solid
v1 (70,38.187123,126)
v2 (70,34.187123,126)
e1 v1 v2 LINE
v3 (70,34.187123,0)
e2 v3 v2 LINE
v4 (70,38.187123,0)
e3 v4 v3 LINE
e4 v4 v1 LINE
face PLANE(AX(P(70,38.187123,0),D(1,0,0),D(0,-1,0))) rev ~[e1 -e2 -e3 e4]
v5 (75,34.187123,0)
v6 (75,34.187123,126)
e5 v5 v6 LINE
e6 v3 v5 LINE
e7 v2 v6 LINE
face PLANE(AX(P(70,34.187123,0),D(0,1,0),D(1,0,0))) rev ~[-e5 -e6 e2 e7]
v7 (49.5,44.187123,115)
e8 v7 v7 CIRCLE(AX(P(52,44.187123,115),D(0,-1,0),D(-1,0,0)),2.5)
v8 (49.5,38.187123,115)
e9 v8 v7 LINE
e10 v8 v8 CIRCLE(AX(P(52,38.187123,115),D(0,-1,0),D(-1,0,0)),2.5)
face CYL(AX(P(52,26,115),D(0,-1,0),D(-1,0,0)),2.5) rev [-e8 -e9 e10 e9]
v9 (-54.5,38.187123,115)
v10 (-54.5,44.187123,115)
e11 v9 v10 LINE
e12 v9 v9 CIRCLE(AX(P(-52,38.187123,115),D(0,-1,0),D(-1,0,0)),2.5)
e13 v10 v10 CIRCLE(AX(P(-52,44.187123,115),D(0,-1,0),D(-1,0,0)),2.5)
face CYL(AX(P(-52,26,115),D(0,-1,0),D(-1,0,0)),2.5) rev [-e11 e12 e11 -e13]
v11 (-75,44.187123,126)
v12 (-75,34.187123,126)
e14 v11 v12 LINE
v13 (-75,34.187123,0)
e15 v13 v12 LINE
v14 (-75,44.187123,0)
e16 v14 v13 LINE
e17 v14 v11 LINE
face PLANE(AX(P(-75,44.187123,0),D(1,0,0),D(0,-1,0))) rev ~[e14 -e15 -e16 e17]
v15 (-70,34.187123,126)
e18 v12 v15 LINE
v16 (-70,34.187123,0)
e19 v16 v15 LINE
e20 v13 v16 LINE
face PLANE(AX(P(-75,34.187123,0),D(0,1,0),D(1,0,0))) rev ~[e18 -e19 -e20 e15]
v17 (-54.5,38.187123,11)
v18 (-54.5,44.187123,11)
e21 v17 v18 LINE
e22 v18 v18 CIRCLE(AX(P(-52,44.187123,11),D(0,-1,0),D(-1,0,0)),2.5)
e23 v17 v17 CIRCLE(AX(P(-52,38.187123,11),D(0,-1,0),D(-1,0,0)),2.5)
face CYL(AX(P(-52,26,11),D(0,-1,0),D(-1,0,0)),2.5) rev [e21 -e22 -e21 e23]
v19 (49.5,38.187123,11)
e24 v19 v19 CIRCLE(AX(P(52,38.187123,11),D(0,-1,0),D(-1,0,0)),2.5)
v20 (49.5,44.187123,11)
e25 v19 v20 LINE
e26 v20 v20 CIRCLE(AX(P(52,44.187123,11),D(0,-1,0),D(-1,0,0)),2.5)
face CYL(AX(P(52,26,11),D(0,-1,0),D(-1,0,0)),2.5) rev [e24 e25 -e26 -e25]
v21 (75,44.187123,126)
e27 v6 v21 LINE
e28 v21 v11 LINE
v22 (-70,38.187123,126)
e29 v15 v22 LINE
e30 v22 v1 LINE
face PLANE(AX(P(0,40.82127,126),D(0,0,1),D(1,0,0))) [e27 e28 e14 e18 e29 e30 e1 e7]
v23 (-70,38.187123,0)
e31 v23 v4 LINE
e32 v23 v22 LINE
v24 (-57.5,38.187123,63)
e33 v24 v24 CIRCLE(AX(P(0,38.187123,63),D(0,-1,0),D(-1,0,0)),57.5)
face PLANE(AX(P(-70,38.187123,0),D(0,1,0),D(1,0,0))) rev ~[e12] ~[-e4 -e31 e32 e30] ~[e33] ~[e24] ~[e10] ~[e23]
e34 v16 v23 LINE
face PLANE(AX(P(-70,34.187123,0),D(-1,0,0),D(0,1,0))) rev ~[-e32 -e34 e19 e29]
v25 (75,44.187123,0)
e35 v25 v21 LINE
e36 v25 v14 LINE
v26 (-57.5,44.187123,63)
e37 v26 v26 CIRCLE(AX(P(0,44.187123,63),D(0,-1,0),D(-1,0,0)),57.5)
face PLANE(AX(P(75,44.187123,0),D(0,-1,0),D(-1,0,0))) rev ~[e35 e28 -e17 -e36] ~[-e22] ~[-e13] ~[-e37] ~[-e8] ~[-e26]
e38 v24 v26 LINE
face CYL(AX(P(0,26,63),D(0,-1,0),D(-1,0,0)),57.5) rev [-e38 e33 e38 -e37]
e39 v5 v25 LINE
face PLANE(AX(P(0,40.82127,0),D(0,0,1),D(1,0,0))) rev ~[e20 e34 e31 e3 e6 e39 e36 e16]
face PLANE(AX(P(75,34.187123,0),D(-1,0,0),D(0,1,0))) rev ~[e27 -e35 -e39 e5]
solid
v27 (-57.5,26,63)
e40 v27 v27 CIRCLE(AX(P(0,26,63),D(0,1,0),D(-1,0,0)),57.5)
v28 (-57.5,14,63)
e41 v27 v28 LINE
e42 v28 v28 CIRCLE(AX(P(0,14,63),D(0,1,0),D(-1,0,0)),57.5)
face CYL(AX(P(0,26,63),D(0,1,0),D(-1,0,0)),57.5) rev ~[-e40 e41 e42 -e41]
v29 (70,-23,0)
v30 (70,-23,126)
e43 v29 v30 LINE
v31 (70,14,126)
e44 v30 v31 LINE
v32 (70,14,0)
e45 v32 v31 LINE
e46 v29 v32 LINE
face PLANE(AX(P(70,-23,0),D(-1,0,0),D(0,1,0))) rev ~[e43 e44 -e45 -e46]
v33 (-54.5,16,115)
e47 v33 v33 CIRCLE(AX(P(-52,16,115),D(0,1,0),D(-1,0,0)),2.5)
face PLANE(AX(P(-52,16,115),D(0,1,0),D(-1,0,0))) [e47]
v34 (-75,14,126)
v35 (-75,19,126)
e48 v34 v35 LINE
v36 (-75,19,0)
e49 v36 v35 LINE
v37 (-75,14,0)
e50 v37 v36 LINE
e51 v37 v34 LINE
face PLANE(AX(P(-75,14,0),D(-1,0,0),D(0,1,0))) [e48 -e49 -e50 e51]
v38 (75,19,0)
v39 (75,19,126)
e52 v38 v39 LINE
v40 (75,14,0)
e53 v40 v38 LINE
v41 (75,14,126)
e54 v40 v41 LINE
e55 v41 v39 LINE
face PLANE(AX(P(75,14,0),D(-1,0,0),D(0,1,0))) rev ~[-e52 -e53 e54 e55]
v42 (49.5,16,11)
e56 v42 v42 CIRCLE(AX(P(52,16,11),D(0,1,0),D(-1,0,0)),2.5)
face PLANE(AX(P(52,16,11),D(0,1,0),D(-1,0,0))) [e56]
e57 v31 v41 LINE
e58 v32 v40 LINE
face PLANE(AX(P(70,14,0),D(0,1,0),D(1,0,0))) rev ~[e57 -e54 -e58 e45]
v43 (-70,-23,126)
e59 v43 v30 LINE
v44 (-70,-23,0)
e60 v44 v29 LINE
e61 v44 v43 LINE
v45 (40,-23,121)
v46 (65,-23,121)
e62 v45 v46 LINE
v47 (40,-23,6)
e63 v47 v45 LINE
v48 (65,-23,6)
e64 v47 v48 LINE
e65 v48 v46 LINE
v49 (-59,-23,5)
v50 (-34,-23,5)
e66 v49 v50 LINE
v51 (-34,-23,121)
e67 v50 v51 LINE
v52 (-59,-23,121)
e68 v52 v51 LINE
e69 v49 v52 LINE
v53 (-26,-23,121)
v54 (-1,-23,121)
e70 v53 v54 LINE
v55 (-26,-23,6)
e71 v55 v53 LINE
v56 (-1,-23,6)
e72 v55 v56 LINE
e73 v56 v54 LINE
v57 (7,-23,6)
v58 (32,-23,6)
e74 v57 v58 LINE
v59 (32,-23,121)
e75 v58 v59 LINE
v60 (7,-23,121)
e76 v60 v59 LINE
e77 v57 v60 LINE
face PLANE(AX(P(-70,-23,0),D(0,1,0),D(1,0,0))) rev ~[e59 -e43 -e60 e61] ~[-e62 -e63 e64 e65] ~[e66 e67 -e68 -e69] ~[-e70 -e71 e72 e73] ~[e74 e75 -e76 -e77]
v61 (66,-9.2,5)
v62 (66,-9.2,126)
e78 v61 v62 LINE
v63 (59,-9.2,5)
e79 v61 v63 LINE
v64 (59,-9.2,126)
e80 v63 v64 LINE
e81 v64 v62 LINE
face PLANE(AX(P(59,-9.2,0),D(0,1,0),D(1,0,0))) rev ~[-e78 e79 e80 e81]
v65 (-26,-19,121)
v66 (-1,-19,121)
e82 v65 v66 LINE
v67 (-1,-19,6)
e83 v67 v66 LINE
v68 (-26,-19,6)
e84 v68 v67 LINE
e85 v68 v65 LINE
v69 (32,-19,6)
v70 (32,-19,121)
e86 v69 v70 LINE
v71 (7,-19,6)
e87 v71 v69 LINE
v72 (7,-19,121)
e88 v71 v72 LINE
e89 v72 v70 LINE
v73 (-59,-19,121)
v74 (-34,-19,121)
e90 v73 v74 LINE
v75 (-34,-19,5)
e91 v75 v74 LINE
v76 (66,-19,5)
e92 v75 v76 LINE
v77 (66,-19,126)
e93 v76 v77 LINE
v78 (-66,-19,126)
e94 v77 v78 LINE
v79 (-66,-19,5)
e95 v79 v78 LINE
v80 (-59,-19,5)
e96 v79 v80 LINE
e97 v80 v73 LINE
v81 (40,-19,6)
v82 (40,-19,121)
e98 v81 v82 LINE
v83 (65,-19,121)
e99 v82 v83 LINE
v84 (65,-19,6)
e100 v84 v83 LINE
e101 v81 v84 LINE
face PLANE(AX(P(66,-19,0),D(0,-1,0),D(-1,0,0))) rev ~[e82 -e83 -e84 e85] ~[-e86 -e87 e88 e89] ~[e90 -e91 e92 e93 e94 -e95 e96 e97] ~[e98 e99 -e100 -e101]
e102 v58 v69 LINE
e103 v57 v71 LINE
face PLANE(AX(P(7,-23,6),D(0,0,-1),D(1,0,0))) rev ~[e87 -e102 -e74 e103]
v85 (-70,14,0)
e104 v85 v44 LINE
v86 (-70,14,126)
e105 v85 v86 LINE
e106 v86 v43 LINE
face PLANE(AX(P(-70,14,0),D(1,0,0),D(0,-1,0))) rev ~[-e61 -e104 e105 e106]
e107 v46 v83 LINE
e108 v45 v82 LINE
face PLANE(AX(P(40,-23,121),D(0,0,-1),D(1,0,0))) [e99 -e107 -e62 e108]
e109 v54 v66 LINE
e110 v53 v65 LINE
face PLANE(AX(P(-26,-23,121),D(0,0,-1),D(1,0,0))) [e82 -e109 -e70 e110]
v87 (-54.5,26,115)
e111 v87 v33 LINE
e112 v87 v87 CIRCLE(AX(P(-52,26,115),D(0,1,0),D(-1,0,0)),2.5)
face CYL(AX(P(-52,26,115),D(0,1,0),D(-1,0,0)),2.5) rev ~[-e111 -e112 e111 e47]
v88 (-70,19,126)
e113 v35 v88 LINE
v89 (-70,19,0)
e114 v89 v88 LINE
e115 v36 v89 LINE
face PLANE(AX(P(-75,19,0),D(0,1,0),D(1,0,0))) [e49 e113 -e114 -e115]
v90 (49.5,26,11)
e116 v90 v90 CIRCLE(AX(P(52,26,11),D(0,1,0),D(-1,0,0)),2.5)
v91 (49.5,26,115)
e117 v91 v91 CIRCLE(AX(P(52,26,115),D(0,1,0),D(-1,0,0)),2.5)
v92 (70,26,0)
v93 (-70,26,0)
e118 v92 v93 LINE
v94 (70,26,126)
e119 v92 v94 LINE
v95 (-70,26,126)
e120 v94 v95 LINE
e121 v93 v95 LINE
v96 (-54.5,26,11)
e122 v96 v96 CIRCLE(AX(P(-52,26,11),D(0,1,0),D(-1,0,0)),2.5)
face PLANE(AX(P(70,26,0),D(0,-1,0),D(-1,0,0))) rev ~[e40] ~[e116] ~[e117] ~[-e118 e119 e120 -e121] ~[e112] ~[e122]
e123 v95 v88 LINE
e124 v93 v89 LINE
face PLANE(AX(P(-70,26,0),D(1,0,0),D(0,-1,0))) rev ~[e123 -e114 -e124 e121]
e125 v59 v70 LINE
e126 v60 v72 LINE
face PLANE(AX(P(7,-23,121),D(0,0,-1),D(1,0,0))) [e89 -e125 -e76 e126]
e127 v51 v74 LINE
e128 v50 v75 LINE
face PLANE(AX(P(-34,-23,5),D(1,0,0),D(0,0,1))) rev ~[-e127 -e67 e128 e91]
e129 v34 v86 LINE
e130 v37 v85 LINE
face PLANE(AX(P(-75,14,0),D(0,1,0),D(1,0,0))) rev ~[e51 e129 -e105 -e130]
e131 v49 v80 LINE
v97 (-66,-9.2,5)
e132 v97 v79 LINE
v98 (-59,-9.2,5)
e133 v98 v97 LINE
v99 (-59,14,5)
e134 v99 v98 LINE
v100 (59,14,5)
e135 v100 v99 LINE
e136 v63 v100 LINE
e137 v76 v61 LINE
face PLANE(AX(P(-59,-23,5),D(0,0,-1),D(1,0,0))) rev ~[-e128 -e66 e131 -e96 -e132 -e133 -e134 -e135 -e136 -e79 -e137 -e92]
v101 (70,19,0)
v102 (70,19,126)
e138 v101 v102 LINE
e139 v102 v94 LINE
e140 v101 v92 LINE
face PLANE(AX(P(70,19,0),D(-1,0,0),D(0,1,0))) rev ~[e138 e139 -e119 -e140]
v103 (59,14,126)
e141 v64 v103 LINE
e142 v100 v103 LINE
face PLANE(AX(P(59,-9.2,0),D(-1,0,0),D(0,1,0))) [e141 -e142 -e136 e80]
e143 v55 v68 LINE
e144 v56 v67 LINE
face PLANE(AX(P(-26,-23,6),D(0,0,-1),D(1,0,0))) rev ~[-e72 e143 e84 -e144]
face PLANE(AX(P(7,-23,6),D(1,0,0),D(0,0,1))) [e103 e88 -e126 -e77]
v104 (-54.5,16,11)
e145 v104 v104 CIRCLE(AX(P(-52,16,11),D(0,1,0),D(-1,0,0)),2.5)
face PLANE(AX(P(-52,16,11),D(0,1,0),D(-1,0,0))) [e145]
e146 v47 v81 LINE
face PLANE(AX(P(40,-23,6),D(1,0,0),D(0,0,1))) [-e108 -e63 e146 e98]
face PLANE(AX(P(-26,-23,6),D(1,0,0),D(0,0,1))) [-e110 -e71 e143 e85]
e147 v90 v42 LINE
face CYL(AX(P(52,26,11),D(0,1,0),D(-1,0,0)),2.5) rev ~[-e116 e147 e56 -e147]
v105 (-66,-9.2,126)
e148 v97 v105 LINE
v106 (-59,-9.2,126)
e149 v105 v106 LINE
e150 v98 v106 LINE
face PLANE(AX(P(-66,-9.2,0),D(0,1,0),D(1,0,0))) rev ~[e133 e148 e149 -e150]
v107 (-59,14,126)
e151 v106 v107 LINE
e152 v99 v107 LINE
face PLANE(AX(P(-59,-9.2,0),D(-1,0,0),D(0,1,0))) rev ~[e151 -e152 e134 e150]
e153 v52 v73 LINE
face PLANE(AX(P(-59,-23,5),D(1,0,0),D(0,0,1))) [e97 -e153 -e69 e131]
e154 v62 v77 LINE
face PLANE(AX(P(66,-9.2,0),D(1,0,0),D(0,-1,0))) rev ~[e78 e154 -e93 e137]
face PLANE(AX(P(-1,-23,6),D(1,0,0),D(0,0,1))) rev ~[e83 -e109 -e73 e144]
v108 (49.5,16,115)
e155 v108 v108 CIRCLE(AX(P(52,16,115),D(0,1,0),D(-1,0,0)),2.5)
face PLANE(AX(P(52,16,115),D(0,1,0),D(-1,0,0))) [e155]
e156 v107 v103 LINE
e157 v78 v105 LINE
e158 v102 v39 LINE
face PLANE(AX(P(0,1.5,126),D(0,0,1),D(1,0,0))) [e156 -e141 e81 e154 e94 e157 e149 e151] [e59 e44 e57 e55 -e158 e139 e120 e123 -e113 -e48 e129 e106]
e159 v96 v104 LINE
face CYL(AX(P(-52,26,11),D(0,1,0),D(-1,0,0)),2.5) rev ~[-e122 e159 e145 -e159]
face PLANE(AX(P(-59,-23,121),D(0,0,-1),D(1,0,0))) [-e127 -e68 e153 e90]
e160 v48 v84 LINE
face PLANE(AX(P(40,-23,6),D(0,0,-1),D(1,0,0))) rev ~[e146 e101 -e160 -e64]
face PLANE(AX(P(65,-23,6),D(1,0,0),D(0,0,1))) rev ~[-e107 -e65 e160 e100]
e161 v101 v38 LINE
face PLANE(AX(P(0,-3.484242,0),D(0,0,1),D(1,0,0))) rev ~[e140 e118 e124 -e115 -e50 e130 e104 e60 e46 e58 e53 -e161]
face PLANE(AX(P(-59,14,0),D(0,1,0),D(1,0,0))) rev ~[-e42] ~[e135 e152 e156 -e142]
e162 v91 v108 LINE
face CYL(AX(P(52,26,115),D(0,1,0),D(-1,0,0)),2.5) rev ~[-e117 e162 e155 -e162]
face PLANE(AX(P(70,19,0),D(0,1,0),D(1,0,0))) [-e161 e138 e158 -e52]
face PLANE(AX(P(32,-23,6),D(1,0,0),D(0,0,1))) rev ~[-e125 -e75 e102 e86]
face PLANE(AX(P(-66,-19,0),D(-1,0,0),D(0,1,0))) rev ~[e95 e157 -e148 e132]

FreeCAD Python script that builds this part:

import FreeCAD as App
import Part
import Sketcher
Q = App.Units.Quantity


def add_polygon(sketch, points):
    """Adds a closed chain of lines whose ends are joined by coincident constraints."""
    first, n = sketch.GeometryCount, len(points)
    for a, b in zip(points, points[1:] + points[:1]):
        sketch.addGeometry(Part.LineSegment(App.Vector(*a, 0), App.Vector(*b, 0)), False)
    for i in range(n):
        sketch.addConstraint(Sketcher.Constraint("Coincident", first + i, 2, first + (i + 1) % n, 1))

doc = App.newDocument("Part")
body = doc.addObject("PartDesign::Body", "Body")

sketch1 = body.newObject("Sketcher::SketchObject", "Sketch")
sketch1.AttachmentSupport = (doc.getObject("XY_Plane"), [""])
sketch1.MapMode = "FlatFace"
add_polygon(sketch1, [(70, 26), (-70, 26), (-70, 19), (-75, 19), (-75, 14), (-70, 14), (-70, -23), (70, -23), (70, 14), (75, 14), (75, 19), (70, 19)])
add_polygon(sketch1, [(-66, -19), (-66, -9), (-59, -9), (-59, 14), (59, 14), (59, -9), (66, -9), (66, -19)])
sketch1.addConstraint([
    Sketcher.Constraint("Horizontal", 0),
    Sketcher.Constraint("Vertical", 1),
    Sketcher.Constraint("Horizontal", 2),
    Sketcher.Constraint("Vertical", 3),
    Sketcher.Constraint("Horizontal", 4),
    Sketcher.Constraint("Vertical", 5),
    Sketcher.Constraint("Horizontal", 6),
    Sketcher.Constraint("Vertical", 7),
    Sketcher.Constraint("Horizontal", 8),
    Sketcher.Constraint("Vertical", 9),
    Sketcher.Constraint("Horizontal", 10),
    Sketcher.Constraint("Vertical", 11),
    Sketcher.Constraint("Vertical", 12),
    Sketcher.Constraint("Horizontal", 13),
    Sketcher.Constraint("Vertical", 14),
    Sketcher.Constraint("Horizontal", 15),
    Sketcher.Constraint("Vertical", 16),
    Sketcher.Constraint("Horizontal", 17),
    Sketcher.Constraint("Vertical", 18),
    Sketcher.Constraint("Horizontal", 19),
    Sketcher.Constraint("Symmetric", 4, 2, 7, 2, -2),
    Sketcher.Constraint("Symmetric", 2, 2, 9, 2, -2),
    Sketcher.Constraint("Symmetric", 13, 2, 16, 2, -2),
    Sketcher.Constraint("Horizontal", 8, 2, 14, 2),
    Sketcher.Constraint("Vertical", 1, 2, 4, 2),
    Sketcher.Constraint("Vertical", 7, 2, 10, 2),
    Sketcher.Constraint("Equal", 13, 17),
    Sketcher.Constraint("Equal", 17, 1),
    Sketcher.Constraint("Equal", 10, 3),
    Sketcher.Constraint("DistanceX", 0, 2, 0, 1, Q("140 mm")),
    Sketcher.Constraint("DistanceX", 2, 2, 2, 1, Q("5 mm")),
    Sketcher.Constraint("DistanceX", 13, 1, 13, 2, Q("7 mm")),
    Sketcher.Constraint("DistanceX", 15, 1, 15, 2, Q("118 mm")),
    Sketcher.Constraint("DistanceY", 5, 2, 5, 1, Q("37 mm")),
    Sketcher.Constraint("DistanceY", 12, 1, 12, 2, Q("9.8 mm")),
    Sketcher.Constraint("DistanceY", 14, 1, 14, 2, Q("23.2 mm")),
    Sketcher.Constraint("DistanceY", -1, 1, 0, 2, Q("26 mm")),
])
pad1 = body.newObject("PartDesign::Pad", "Pad")
pad1.Profile = sketch1
pad1.Length = 126

sketch2 = body.newObject("Sketcher::SketchObject", "Sketch001")
sketch2.AttachmentSupport = (doc.getObject("XZ_Plane"), [""])
sketch2.MapMode = "FlatFace"
sketch2.AttachmentOffset = App.Placement(App.Vector(0, 0, 23), App.Rotation())
add_polygon(sketch2, [(-59, 121), (-59, 5), (-34, 5), (-34, 121)])
add_polygon(sketch2, [(-26, 121), (-26, 6), (-1, 6), (-1, 121)])
add_polygon(sketch2, [(7, 121), (7, 6), (32, 6), (32, 121)])
add_polygon(sketch2, [(40, 121), (40, 6), (65, 6), (65, 121)])
sketch2.addConstraint([
    Sketcher.Constraint("Vertical", 0),
    Sketcher.Constraint("Horizontal", 1),
    Sketcher.Constraint("Vertical", 2),
    Sketcher.Constraint("Horizontal", 3),
    Sketcher.Constraint("Vertical", 4),
    Sketcher.Constraint("Horizontal", 5),
    Sketcher.Constraint("Vertical", 6),
    Sketcher.Constraint("Horizontal", 7),
    Sketcher.Constraint("Vertical", 8),
    Sketcher.Constraint("Horizontal", 9),
    Sketcher.Constraint("Vertical", 10),
    Sketcher.Constraint("Horizontal", 11),
    Sketcher.Constraint("Vertical", 12),
    Sketcher.Constraint("Horizontal", 13),
    Sketcher.Constraint("Vertical", 14),
    Sketcher.Constraint("Horizontal", 15),
    Sketcher.Constraint("Horizontal", 3, 2, 6, 2),
    Sketcher.Constraint("Horizontal", 5, 2, 8, 2),
    Sketcher.Constraint("Horizontal", 7, 2, 10, 2),
    Sketcher.Constraint("Horizontal", 9, 2, 12, 2),
    Sketcher.Constraint("Horizontal", 11, 2, 14, 2),
    Sketcher.Constraint("Equal", 3, 5),
    Sketcher.Constraint("Equal", 7, 9),
    Sketcher.Constraint("Equal", 11, 13),
    Sketcher.Constraint("DistanceX", 1, 1, 1, 2, Q("25 mm")),
    Sketcher.Constraint("DistanceY", 0, 2, 0, 1, Q("116 mm")),
    Sketcher.Constraint("DistanceY", 4, 2, 4, 1, Q("115 mm")),
    Sketcher.Constraint("DistanceX", 0, 2, -1, 1, Q("59 mm")),
    Sketcher.Constraint("DistanceY", -1, 1, 0, 2, Q("5 mm")),
    Sketcher.Constraint("DistanceX", 4, 2, -1, 1, Q("26 mm")),
    Sketcher.Constraint("DistanceX", -1, 1, 8, 2, Q("7 mm")),
    Sketcher.Constraint("DistanceX", -1, 1, 12, 2, Q("40 mm")),
])
pocket1 = body.newObject("PartDesign::Pocket", "Pocket")
pocket1.Profile = sketch2
pocket1.Length = 6
body2 = doc.addObject("PartDesign::Body", "Body001")

sketch3 = body2.newObject("Sketcher::SketchObject", "Sketch002")
sketch3.AttachmentSupport = (doc.getObject("XY_Plane001"), [""])
sketch3.MapMode = "FlatFace"
add_polygon(sketch3, [(70, 34.2), (75, 34.2), (75, 44.2), (-75, 44.2), (-75, 34.2), (-70, 34.2), (-70, 38.2), (70, 38.2)])
sketch3.addConstraint([
    Sketcher.Constraint("Horizontal", 0),
    Sketcher.Constraint("Vertical", 1),
    Sketcher.Constraint("Horizontal", 2),
    Sketcher.Constraint("Vertical", 3),
    Sketcher.Constraint("Horizontal", 4),
    Sketcher.Constraint("Vertical", 5),
    Sketcher.Constraint("Horizontal", 6),
    Sketcher.Constraint("Vertical", 7),
    Sketcher.Constraint("Symmetric", 0, 2, 3, 2, -2),
    Sketcher.Constraint("Equal", 0, 4),
    Sketcher.Constraint("DistanceX", 0, 1, 0, 2, Q("5 mm")),
    Sketcher.Constraint("DistanceX", 2, 2, 2, 1, Q("150 mm")),
    Sketcher.Constraint("DistanceY", 1, 1, 1, 2, Q("10 mm")),
    Sketcher.Constraint("DistanceY", 5, 1, 5, 2, Q("4 mm")),
    Sketcher.Constraint("DistanceY", -1, 1, 0, 2, Q("34.187123 mm")),
])
pad2 = body2.newObject("PartDesign::Pad", "Pad001")
pad2.Profile = sketch3
pad2.Length = 126
body3 = doc.addObject("PartDesign::Body", "Body002")

sketch4 = body3.newObject("Sketcher::SketchObject", "Sketch003")
sketch4.AttachmentSupport = (doc.getObject("XZ_Plane002"), [""])
sketch4.MapMode = "FlatFace"
sketch4.AttachmentOffset = App.Placement(App.Vector(0, 0, -26), App.Rotation())
sketch4.addGeometry(Part.Circle(App.Vector(0, 63, 0), App.Vector(0, 0, 1), 58), False)
sketch4.addConstraint([
    Sketcher.Constraint("PointOnObject", 0, 3, -2),
    Sketcher.Constraint("Diameter", 0, Q("115 mm")),
    Sketcher.Constraint("DistanceY", -1, 1, 0, 3, Q("63 mm")),
])
pad3 = body3.newObject("PartDesign::Pad", "Pad002")
pad3.Profile = sketch4
pad3.Type = "TwoLengths"
pad3.Length = 35
pad3.Length2 = 25
doc.recompute()

body4 = doc.addObject("PartDesign::Body", "Body003")
body4.BaseFeature = body3
boolean = body.newObject("PartDesign::Boolean", "Boolean")
boolean.Type = "Cut"
boolean.addObjects([body4])
doc.recompute()

sketch5 = body.newObject("Sketcher::SketchObject", "Sketch004")
sketch5.AttachmentSupport = (doc.getObject("XY_Plane"), [""])
sketch5.MapMode = "FlatFace"
add_polygon(sketch5, [(59, 14), (-59, 14), (-59, -9), (-66, -9), (-66, -19), (66, -19), (66, -9), (59, -9)])
sketch5.addConstraint([
    Sketcher.Constraint("Horizontal", 0),
    Sketcher.Constraint("Vertical", 1),
    Sketcher.Constraint("Horizontal", 2),
    Sketcher.Constraint("Vertical", 3),
    Sketcher.Constraint("Horizontal", 4),
    Sketcher.Constraint("Vertical", 5),
    Sketcher.Constraint("Horizontal", 6),
    Sketcher.Constraint("Vertical", 7),
    Sketcher.Constraint("Symmetric", 2, 2, 5, 2, -2),
    Sketcher.Constraint("Equal", 2, 6),
    Sketcher.Constraint("DistanceX", 0, 2, 0, 1, Q("118 mm")),
    Sketcher.Constraint("DistanceX", 2, 2, 2, 1, Q("7 mm")),
    Sketcher.Constraint("DistanceY", 1, 2, 1, 1, Q("23.2 mm")),
    Sketcher.Constraint("DistanceY", 3, 2, 3, 1, Q("9.8 mm")),
    Sketcher.Constraint("DistanceY", -1, 1, 0, 2, Q("14 mm")),
])
pad4 = body.newObject("PartDesign::Pad", "Pad003")
pad4.Profile = sketch5
pad4.Length = 5
doc.recompute()

boolean2 = body2.newObject("PartDesign::Boolean", "Boolean001")
boolean2.Type = "Cut"
boolean2.addObjects([body3])
body5 = doc.addObject("PartDesign::Body", "Body004")
body5.AllowCompound = True

sketch6 = body5.newObject("Sketcher::SketchObject", "Sketch005")
sketch6.AttachmentSupport = (doc.getObject("XZ_Plane004"), [""])
sketch6.MapMode = "FlatFace"
sketch6.AttachmentOffset = App.Placement(App.Vector(0, 0, -26), App.Rotation())
sketch6.addGeometry([
    Part.Circle(App.Vector(52, 11, 0), App.Vector(0, 0, 1), 2.5),
    Part.Circle(App.Vector(-52, 11, 0), App.Vector(0, 0, 1), 2.5),
    Part.Circle(App.Vector(-52, 115, 0), App.Vector(0, 0, 1), 2.5),
    Part.Circle(App.Vector(52, 115, 0), App.Vector(0, 0, 1), 2.5),
], False)
sketch6.addConstraint([
    Sketcher.Constraint("Equal", 0, 1),
    Sketcher.Constraint("Equal", 1, 2),
    Sketcher.Constraint("Equal", 2, 3),
    Sketcher.Constraint("Symmetric", 0, 3, 1, 3, -2),
    Sketcher.Constraint("Symmetric", 2, 3, 3, 3, -2),
    Sketcher.Constraint("Vertical", 1, 3, 2, 3),
    Sketcher.Constraint("Diameter", 0, Q("5 mm")),
    Sketcher.Constraint("DistanceX", -1, 1, 0, 3, Q("52 mm")),
    Sketcher.Constraint("DistanceY", -1, 1, 0, 3, Q("11 mm")),
    Sketcher.Constraint("DistanceY", -1, 1, 2, 3, Q("115 mm")),
])
pad5 = body5.newObject("PartDesign::Pad", "Pad004")
pad5.Profile = sketch6
pad5.Type = "TwoLengths"
pad5.Length = 10
pad5.Length2 = 25
doc.recompute()

body6 = doc.addObject("PartDesign::Body", "Body005")
body6.BaseFeature = body5
boolean3 = body.newObject("PartDesign::Boolean", "Boolean002")
boolean3.Type = "Cut"
boolean3.addObjects([body6])
doc.recompute()

boolean4 = body2.newObject("PartDesign::Boolean", "Boolean003")
boolean4.Type = "Cut"
boolean4.addObjects([body5])

doc.recompute()
